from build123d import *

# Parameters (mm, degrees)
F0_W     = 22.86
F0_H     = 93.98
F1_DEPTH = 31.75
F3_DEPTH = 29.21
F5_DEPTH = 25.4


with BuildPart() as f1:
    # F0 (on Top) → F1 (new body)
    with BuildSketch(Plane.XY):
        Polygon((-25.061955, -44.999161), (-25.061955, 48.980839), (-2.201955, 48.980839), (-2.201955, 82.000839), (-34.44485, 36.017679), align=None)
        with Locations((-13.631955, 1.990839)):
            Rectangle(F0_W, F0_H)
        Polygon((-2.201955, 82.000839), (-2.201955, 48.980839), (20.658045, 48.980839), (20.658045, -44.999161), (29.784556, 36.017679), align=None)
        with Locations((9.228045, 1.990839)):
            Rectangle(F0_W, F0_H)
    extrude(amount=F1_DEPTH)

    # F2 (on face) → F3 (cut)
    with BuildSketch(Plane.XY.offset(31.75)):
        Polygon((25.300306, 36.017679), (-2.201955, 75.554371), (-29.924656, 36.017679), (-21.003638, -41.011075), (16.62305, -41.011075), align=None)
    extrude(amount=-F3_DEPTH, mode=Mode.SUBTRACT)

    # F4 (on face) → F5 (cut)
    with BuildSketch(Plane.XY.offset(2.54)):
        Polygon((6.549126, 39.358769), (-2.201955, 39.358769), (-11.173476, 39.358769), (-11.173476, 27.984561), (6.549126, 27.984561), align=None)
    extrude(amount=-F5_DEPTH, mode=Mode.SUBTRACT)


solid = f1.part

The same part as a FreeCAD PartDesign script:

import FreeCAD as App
import Part
import Sketcher
Q = App.Units.Quantity


def add_polygon(sketch, points):
    """Adds a closed chain of lines whose ends are joined by coincident constraints."""
    first, n = sketch.GeometryCount, len(points)
    for a, b in zip(points, points[1:] + points[:1]):
        sketch.addGeometry(Part.LineSegment(App.Vector(*a, 0), App.Vector(*b, 0)), False)
    for i in range(n):
        sketch.addConstraint(Sketcher.Constraint("Coincident", first + i, 2, first + (i + 1) % n, 1))

doc = App.newDocument("Part")
body = doc.addObject("PartDesign::Body", "Body")

# Sketch on XY plane
sketch1 = body.newObject("Sketcher::SketchObject", "Sketch")
sketch1.AttachmentSupport = (doc.getObject("XY_Plane"), [""])
sketch1.MapMode = "FlatFace"
add_polygon(sketch1, [(-2.201955, 82.000839), (-34.44485, 36.017679), (-25.061955, -44.999161), (20.658045, -44.999161), (29.784556, 36.017679)])  # lines 0-4
sketch1.addConstraint(Sketcher.Constraint("Horizontal", 2))
sketch1.addConstraint(Sketcher.Constraint("Horizontal", 0, 2, 3, 2))
sketch1.addConstraint(Sketcher.Constraint("DistanceX", 2, 1, 2, 2, Q("1.8 in")))
sketch1.addConstraint(Sketcher.Constraint("DistanceY", 1, 2, 4, 2, Q("5 in")))
sketch1.addConstraint(Sketcher.Constraint("DistanceX", 1, 2, 4, 2, Q("0.9 in")))
sketch1.addConstraint(Sketcher.Constraint("Distance", 3, 81.529268))
sketch1.addConstraint(Sketcher.Constraint("DistanceX", 0, 2, -1, 1, 34.44485))
sketch1.addConstraint(Sketcher.Constraint("DistanceY", -1, 1, 0, 2, 36.017679))
sketch1.addConstraint(Sketcher.Constraint("DistanceY", 1, 2, -1, 1, 44.999161))
sketch1.addConstraint(Sketcher.Constraint("Distance", 0, 56.160977))
pad1 = body.newObject("PartDesign::Pad", "Pad")
pad1.Profile = sketch1
pad1.Length = Q("1.25 in")

# Sketch on XY plane
sketch2 = body.newObject("Sketcher::SketchObject", "Sketch001")
sketch2.AttachmentSupport = (doc.getObject("XY_Plane"), [""])
sketch2.MapMode = "FlatFace"
sketch2.AttachmentOffset = App.Placement(App.Vector(0, 0, 1.25 * 25.4), App.Rotation())
add_polygon(sketch2, [(25.300306, 36.017679), (-2.201955, 75.554371), (-29.924656, 36.017679), (-21.003638, -41.011075), (16.62305, -41.011075)])  # lines 0-4
sketch2.addConstraint(Sketcher.Constraint("Horizontal", 3))
sketch2.addConstraint(Sketcher.Constraint("Horizontal", 1, 2, 4, 2))
sketch2.addConstraint(Sketcher.Constraint("DistanceX", 1, 2, 0, 2, 27.722701))
sketch2.addConstraint(Sketcher.Constraint("Distance", 0, 48.161441))
sketch2.addConstraint(Sketcher.Constraint("Distance", 1, 48.287661))
sketch2.addConstraint(Sketcher.Constraint("DistanceX", 3, 1, 3, 2, 37.626688))
sketch2.addConstraint(Sketcher.Constraint("DistanceY", -1, 1, 0, 2, 75.554371))
sketch2.addConstraint(Sketcher.Constraint("DistanceX", -1, 1, 3, 2, 16.62305))
sketch2.addConstraint(Sketcher.Constraint("Distance", 2, 77.543623))
sketch2.addConstraint(Sketcher.Constraint("Distance", 4, 77.515958))
pocket1 = body.newObject("PartDesign::Pocket", "Pocket")
pocket1.Profile = sketch2
pocket1.Length = Q("1.15 in")

# Sketch on XY plane
sketch3 = body.newObject("Sketcher::SketchObject", "Sketch002")
sketch3.AttachmentSupport = (doc.getObject("XY_Plane"), [""])
sketch3.MapMode = "FlatFace"
sketch3.AttachmentOffset = App.Placement(App.Vector(0, 0, 0.1 * 25.4), App.Rotation())
add_polygon(sketch3, [(6.549126, 39.358769), (-11.173476, 39.358769), (-11.173476, 27.984561), (6.549126, 27.984561)])  # lines 0-3
sketch3.addConstraint(Sketcher.Constraint("Horizontal", 0))
sketch3.addConstraint(Sketcher.Constraint("Vertical", 1))
sketch3.addConstraint(Sketcher.Constraint("Horizontal", 2))
sketch3.addConstraint(Sketcher.Constraint("Vertical", 3))
sketch3.addConstraint(Sketcher.Constraint("DistanceY", 1, 2, 1, 1, 11.374208))
sketch3.addConstraint(Sketcher.Constraint("DistanceX", 0, 2, 0, 1, 17.722602))
sketch3.addConstraint(Sketcher.Constraint("DistanceY", -1, 1, 0, 2, 39.358769))
sketch3.addConstraint(Sketcher.Constraint("DistanceX", 0, 2, -1, 1, 11.173476))
pocket2 = body.newObject("PartDesign::Pocket", "Pocket001")
pocket2.Profile = sketch3
pocket2.Length = Q("1 in")

doc.recompute()
